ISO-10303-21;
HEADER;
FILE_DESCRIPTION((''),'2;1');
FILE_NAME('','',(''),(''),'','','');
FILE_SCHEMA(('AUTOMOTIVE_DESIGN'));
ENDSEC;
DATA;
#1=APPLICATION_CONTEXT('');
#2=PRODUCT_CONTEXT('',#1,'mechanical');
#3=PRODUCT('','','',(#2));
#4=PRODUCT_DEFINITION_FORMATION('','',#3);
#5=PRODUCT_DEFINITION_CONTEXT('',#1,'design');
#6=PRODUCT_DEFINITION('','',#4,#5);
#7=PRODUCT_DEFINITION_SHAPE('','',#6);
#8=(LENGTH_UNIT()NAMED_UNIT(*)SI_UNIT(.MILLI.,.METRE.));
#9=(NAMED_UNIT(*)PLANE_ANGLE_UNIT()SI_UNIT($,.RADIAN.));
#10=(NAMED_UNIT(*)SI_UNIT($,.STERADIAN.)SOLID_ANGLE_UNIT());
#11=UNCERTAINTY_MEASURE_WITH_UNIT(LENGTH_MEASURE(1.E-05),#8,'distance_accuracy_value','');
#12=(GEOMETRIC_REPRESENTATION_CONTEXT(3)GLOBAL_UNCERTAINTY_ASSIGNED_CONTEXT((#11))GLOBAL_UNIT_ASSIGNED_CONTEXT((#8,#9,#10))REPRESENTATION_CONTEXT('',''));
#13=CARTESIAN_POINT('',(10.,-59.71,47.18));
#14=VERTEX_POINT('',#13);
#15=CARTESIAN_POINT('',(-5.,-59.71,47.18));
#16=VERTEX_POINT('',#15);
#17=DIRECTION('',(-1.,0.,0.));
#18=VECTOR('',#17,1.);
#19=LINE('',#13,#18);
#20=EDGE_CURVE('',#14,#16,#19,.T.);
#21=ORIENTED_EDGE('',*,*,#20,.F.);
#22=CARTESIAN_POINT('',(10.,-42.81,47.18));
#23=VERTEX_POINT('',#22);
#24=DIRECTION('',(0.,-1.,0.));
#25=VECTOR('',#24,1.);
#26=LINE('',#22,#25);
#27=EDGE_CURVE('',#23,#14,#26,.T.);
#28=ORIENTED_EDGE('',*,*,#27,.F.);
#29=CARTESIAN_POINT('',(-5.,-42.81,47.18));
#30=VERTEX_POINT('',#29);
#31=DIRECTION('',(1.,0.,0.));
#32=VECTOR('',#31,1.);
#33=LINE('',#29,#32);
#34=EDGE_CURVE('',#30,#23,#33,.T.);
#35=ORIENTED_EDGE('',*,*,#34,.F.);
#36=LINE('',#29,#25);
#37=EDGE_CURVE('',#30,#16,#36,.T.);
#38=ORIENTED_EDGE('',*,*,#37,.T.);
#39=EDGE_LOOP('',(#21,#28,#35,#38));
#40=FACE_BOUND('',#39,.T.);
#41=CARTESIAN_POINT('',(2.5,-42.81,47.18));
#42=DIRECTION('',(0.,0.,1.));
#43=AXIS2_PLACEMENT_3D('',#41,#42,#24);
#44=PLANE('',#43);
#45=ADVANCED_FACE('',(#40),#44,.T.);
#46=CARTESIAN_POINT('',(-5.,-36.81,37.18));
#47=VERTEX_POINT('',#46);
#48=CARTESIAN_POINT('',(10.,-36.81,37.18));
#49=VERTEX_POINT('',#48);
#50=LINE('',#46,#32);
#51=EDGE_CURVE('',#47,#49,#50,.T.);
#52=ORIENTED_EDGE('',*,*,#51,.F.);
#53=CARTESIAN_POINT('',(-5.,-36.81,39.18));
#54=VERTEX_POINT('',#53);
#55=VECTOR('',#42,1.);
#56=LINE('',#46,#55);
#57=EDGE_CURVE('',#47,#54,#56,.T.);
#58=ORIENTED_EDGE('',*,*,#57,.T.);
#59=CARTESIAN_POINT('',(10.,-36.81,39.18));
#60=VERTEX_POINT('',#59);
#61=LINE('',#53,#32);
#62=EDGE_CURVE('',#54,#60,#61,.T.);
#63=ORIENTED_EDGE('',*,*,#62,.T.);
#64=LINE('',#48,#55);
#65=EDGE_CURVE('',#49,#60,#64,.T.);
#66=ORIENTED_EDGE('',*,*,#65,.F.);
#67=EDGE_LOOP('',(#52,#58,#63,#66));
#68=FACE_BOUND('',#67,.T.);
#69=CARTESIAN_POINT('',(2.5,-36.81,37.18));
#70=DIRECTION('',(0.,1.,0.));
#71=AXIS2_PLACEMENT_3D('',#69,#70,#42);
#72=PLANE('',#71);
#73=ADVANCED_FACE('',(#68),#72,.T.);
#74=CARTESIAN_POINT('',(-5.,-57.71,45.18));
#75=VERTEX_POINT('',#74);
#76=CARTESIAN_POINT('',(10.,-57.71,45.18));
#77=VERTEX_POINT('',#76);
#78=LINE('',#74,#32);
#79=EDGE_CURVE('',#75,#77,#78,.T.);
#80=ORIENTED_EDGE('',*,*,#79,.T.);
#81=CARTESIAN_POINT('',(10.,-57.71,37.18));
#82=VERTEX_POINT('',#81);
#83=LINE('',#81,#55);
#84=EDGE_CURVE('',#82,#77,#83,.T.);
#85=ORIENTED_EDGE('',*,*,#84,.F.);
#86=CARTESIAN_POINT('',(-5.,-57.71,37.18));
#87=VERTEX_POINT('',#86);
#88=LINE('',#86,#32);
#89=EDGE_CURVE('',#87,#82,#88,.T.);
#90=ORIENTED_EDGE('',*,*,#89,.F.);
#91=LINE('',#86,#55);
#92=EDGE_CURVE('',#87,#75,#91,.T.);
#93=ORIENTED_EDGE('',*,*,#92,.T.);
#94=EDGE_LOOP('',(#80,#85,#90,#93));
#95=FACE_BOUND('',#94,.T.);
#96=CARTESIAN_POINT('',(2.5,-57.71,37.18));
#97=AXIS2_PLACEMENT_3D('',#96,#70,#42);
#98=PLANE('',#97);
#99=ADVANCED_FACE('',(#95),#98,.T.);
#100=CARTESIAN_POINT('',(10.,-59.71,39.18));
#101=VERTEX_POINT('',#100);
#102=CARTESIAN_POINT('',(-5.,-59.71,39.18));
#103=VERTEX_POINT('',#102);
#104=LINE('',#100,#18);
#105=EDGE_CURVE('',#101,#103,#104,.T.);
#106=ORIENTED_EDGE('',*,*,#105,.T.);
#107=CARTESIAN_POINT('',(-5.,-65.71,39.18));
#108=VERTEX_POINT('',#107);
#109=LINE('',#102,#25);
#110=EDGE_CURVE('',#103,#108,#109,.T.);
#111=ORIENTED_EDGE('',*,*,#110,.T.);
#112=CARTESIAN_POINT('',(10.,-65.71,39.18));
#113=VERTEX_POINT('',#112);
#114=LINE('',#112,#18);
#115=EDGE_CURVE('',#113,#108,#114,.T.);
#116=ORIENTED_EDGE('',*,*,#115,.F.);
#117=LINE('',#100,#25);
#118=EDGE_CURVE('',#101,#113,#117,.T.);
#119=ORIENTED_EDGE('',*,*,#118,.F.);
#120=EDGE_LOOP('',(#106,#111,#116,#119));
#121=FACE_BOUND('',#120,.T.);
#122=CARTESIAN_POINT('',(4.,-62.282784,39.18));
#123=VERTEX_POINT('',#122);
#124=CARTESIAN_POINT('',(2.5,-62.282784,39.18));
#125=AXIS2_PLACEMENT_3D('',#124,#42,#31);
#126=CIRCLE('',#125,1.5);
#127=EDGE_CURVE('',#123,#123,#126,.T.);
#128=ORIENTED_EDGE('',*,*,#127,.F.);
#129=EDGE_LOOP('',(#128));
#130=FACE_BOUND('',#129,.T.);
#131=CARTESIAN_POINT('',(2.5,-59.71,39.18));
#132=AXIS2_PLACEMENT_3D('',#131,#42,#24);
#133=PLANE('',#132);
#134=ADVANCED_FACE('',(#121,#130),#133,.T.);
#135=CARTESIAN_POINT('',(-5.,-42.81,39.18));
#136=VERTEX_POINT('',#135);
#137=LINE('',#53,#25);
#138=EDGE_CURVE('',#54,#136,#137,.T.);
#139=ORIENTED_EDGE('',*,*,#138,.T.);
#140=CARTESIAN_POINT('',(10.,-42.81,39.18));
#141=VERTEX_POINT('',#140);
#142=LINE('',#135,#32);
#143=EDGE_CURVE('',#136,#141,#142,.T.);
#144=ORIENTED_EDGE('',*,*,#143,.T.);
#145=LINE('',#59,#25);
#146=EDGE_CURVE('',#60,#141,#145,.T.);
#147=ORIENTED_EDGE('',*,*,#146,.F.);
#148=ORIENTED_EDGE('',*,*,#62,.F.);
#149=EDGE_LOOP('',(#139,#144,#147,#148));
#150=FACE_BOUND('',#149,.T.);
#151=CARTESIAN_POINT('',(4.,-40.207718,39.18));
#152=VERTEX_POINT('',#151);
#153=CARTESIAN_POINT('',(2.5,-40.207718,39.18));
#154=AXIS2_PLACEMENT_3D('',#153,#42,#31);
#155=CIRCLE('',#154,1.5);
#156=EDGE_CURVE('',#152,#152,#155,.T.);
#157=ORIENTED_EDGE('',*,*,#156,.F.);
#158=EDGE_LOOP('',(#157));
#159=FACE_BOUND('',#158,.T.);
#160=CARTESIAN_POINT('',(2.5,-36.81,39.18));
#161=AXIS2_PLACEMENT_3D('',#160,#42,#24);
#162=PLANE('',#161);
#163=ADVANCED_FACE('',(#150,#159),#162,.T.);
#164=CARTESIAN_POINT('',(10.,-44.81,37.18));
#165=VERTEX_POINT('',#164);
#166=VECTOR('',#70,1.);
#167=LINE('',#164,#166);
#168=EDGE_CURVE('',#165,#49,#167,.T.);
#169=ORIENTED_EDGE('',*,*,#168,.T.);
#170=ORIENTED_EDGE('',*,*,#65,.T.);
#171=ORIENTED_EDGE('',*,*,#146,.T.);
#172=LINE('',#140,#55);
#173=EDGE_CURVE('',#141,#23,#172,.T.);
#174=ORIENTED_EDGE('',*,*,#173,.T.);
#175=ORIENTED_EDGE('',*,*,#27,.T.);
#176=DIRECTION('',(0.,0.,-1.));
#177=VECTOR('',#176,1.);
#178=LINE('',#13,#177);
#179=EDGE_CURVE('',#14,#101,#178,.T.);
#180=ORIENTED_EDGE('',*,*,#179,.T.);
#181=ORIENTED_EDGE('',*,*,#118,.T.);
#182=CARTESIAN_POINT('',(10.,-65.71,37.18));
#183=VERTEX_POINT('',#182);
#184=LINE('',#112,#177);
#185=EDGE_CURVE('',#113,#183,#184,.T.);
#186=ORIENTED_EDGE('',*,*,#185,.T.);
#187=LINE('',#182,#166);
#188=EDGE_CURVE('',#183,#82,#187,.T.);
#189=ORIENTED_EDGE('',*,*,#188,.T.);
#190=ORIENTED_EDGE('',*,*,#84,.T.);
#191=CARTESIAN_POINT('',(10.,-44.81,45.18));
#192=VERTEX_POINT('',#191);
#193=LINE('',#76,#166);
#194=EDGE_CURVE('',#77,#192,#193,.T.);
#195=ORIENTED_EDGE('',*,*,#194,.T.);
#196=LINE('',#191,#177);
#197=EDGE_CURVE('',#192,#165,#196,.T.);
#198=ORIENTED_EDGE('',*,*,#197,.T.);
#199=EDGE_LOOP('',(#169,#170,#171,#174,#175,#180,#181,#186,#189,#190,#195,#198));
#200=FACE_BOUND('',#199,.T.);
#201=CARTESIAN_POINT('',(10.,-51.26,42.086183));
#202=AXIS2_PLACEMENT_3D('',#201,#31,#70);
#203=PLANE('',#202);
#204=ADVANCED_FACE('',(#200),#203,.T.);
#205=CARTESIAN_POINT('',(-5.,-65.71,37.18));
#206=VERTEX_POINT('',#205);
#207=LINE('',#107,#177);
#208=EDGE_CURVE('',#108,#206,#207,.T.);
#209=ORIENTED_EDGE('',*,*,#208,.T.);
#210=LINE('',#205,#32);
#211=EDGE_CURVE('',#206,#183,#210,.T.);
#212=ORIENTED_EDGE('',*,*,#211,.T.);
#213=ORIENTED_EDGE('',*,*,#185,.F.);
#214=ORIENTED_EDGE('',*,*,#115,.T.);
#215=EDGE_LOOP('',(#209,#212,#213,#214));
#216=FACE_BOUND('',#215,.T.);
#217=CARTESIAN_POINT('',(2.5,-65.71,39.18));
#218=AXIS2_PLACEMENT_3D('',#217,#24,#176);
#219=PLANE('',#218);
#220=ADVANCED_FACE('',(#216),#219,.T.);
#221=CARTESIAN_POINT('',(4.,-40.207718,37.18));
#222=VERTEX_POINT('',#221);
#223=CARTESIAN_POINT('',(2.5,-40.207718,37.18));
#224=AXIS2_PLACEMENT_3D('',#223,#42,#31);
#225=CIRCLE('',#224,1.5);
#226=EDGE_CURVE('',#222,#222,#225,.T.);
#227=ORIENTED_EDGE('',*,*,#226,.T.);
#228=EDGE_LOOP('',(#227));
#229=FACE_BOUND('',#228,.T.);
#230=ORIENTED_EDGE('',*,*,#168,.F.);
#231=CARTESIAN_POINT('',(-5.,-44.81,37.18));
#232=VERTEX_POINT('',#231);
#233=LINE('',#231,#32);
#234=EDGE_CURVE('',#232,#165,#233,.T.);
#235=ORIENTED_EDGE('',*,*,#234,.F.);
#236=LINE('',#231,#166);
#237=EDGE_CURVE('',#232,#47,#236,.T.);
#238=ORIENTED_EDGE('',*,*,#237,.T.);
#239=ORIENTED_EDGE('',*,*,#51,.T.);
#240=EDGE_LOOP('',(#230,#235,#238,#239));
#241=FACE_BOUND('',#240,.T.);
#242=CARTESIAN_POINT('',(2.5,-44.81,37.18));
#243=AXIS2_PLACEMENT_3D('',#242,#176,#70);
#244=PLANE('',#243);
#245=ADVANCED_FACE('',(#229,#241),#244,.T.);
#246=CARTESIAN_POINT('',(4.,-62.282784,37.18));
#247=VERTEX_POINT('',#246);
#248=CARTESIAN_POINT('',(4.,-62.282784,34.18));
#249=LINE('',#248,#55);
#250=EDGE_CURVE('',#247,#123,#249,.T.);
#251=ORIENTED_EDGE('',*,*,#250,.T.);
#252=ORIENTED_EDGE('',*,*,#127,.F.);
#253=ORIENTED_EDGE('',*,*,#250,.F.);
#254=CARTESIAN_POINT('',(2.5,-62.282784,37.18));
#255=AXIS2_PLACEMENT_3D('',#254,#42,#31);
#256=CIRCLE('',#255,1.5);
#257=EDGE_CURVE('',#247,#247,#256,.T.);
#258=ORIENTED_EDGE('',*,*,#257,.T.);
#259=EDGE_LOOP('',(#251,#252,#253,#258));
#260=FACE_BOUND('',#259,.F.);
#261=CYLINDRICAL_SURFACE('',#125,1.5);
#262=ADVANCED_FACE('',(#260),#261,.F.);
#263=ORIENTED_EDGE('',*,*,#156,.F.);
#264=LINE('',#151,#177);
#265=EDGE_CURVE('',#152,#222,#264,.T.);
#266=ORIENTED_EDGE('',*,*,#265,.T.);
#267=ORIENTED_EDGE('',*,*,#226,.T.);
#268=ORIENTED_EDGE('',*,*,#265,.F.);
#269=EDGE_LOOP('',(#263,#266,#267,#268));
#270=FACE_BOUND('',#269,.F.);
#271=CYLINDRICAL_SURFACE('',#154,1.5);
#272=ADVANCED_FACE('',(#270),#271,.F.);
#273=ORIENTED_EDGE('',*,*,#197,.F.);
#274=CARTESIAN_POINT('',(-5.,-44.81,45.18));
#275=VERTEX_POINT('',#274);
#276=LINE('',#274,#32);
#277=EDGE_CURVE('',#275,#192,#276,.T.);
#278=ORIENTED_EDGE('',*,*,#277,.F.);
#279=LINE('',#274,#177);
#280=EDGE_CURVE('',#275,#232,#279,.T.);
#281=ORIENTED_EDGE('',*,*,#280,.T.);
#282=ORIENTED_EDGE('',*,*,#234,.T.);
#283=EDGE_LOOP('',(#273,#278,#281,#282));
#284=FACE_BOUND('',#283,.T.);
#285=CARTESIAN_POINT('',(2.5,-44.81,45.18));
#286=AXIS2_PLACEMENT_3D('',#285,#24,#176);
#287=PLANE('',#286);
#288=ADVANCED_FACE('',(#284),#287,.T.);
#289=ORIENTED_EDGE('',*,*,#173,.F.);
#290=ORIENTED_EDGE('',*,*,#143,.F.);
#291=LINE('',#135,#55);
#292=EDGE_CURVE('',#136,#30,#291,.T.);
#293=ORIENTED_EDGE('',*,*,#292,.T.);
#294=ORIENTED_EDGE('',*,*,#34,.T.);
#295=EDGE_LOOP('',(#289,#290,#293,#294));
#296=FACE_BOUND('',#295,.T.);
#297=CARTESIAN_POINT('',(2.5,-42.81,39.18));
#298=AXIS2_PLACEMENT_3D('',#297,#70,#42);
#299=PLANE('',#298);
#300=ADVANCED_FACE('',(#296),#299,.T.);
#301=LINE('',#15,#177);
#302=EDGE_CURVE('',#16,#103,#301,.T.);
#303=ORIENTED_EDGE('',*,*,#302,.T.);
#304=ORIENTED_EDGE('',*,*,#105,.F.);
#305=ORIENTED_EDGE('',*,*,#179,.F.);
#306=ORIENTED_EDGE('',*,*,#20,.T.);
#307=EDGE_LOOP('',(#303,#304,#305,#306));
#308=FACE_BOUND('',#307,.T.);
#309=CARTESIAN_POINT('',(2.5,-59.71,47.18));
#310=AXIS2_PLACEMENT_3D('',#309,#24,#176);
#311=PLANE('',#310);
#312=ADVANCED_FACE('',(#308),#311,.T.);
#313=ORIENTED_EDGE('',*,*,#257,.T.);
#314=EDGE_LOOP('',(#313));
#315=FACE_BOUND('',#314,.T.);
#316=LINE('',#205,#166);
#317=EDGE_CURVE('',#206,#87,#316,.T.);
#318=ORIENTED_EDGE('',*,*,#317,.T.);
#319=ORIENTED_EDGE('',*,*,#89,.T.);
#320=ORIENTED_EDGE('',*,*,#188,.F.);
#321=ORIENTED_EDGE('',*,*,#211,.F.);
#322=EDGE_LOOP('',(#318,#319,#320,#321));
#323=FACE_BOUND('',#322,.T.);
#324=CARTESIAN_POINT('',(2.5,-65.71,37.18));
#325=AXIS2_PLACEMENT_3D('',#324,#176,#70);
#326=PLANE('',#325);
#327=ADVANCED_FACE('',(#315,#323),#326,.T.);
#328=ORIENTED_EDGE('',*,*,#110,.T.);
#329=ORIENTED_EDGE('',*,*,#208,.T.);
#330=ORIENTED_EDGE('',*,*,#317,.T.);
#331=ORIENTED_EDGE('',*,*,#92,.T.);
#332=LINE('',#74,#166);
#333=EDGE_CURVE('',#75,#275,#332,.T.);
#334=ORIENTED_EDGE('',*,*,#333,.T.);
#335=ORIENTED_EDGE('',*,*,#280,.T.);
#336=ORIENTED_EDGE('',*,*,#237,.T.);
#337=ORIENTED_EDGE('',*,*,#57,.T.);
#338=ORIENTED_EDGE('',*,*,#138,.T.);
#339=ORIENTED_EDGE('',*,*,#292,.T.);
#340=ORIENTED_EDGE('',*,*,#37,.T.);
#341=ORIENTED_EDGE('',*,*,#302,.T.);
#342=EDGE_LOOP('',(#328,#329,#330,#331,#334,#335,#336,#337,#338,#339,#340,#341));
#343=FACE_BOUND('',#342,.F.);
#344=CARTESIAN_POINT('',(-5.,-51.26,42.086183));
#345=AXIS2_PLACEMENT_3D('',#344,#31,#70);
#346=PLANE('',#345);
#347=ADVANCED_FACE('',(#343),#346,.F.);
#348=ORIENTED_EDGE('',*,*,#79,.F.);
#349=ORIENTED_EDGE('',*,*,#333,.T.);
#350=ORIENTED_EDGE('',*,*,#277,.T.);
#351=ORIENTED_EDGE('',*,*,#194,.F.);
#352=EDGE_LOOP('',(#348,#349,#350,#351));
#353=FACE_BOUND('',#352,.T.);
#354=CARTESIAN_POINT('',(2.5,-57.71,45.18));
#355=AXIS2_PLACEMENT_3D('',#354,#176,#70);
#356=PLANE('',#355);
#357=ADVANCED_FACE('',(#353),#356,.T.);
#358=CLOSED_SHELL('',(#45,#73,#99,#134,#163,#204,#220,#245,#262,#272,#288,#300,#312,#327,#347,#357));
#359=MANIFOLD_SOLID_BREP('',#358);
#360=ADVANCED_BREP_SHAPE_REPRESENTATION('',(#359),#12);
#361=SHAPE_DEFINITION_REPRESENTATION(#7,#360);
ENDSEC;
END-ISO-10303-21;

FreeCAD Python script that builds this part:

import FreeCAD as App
import Part
import Sketcher

V = App.Vector


def add_polygon(sketch, points):
    """Adds a closed chain of lines whose ends are joined by coincident constraints."""
    first, n = sketch.GeometryCount, len(points)
    for a, b in zip(points, points[1:] + points[:1]):
        sketch.addGeometry(Part.LineSegment(App.Vector(*a, 0), App.Vector(*b, 0)), False)
    for i in range(n):
        sketch.addConstraint(Sketcher.Constraint("Coincident", first + i, 2, first + (i + 1) % n, 1))

doc = App.newDocument("Part")
body = doc.addObject("PartDesign::Body", "Body")
body.AllowCompound = True

sketch1 = body.newObject("Sketcher::SketchObject", "Sketch")
sketch1.AttachmentSupport = (doc.getObject("XY_Plane"), [""])
sketch1.MapMode = "FlatFace"
sketch1.AttachmentOffset = App.Placement(V(0, 0, 39.18), App.Rotation())
sketch1.addGeometry(Part.Circle(V(0, -40.2, 0), V(0, 0, 1), 1.5), False)
sketch1.addGeometry(Part.Circle(V(0, -62.3, 0), V(0, 0, 1), 1.5), False)
sketch1.addConstraint(Sketcher.Constraint("Equal", 0, 1))
sketch1.addConstraint(Sketcher.Constraint("PointOnObject", 0, 3, -2))
sketch1.addConstraint(Sketcher.Constraint("PointOnObject", 1, 3, -2))
sketch1.addConstraint(Sketcher.Constraint("Diameter", 0, 3.0))
sketch1.addConstraint(Sketcher.Constraint("DistanceY", 0, 3, -1, 1, 40.207718))
sketch1.addConstraint(Sketcher.Constraint("DistanceY", 1, 3, -1, 1, 62.282784))
pad1 = body.newObject("PartDesign::Pad", "Pad")
pad1.Profile = sketch1
pad1.Length = 10
pad1.Midplane = True
body2 = doc.addObject("PartDesign::Body", "Body001")

sketch2 = body2.newObject("Sketcher::SketchObject", "Sketch001")
sketch2.AttachmentSupport = (doc.getObject("YZ_Plane001"), [""])
sketch2.MapMode = "FlatFace"
add_polygon(sketch2, [(-65.7, 39.2), (-65.7, 37.2), (-57.7, 37.2), (-57.7, 45.2), (-44.8, 45.2), (-44.8, 37.2), (-36.8, 37.2), (-36.8, 39.2), (-42.8, 39.2), (-42.8, 47.2), (-59.7, 47.2), (-59.7, 39.2)])
sketch2.addConstraint(Sketcher.Constraint("Vertical", 0))
sketch2.addConstraint(Sketcher.Constraint("Horizontal", 1))
sketch2.addConstraint(Sketcher.Constraint("Vertical", 2))
sketch2.addConstraint(Sketcher.Constraint("Horizontal", 3))
sketch2.addConstraint(Sketcher.Constraint("Vertical", 4))
sketch2.addConstraint(Sketcher.Constraint("Horizontal", 5))
sketch2.addConstraint(Sketcher.Constraint("Vertical", 6))
sketch2.addConstraint(Sketcher.Constraint("Horizontal", 7))
sketch2.addConstraint(Sketcher.Constraint("Vertical", 8))
sketch2.addConstraint(Sketcher.Constraint("Horizontal", 9))
sketch2.addConstraint(Sketcher.Constraint("Vertical", 10))
sketch2.addConstraint(Sketcher.Constraint("Horizontal", 11))
sketch2.addConstraint(Sketcher.Constraint("Horizontal", 1, 2, 4, 2))
sketch2.addConstraint(Sketcher.Constraint("Horizontal", 7, 2, 10, 2))
sketch2.addConstraint(Sketcher.Constraint("Equal", 1, 5))
sketch2.addConstraint(Sketcher.Constraint("Equal", 7, 11))
sketch2.addConstraint(Sketcher.Constraint("Equal", 5, 2))
sketch2.addConstraint(Sketcher.Constraint("Equal", 4, 8))
sketch2.addConstraint(Sketcher.Constraint("DistanceX", 1, 1, 1, 2, 8.0))
sketch2.addConstraint(Sketcher.Constraint("DistanceX", 7, 2, 7, 1, 6.0))
sketch2.addConstraint(Sketcher.Constraint("DistanceY", 0, 2, 0, 1, 2.0))
sketch2.addConstraint(Sketcher.Constraint("DistanceX", 3, 1, 3, 2, 12.9))
sketch2.addConstraint(Sketcher.Constraint("DistanceX", 0, 2, -1, 1, 65.71))
sketch2.addConstraint(Sketcher.Constraint("DistanceY", -1, 1, 0, 2, 37.18))
pad2 = body2.newObject("PartDesign::Pad", "Pad001")
pad2.Profile = sketch2
pad2.Length = 15
pad2.Midplane = True
doc.recompute()

boolean = body2.newObject("PartDesign::Boolean", "Boolean")
boolean.Type = "Cut"
boolean.addObjects([body])
body3 = doc.addObject("PartDesign::Body", "Body002")
doc.recompute()

body2.Placement = App.Placement(V(2.5, 0, 0), App.Rotation(V(0, 0, 1), 0))
boolean2 = body3.newObject("PartDesign::Boolean", "Boolean001")
boolean2.Type = "Fuse"
boolean2.addObjects([body2])

doc.recompute()
